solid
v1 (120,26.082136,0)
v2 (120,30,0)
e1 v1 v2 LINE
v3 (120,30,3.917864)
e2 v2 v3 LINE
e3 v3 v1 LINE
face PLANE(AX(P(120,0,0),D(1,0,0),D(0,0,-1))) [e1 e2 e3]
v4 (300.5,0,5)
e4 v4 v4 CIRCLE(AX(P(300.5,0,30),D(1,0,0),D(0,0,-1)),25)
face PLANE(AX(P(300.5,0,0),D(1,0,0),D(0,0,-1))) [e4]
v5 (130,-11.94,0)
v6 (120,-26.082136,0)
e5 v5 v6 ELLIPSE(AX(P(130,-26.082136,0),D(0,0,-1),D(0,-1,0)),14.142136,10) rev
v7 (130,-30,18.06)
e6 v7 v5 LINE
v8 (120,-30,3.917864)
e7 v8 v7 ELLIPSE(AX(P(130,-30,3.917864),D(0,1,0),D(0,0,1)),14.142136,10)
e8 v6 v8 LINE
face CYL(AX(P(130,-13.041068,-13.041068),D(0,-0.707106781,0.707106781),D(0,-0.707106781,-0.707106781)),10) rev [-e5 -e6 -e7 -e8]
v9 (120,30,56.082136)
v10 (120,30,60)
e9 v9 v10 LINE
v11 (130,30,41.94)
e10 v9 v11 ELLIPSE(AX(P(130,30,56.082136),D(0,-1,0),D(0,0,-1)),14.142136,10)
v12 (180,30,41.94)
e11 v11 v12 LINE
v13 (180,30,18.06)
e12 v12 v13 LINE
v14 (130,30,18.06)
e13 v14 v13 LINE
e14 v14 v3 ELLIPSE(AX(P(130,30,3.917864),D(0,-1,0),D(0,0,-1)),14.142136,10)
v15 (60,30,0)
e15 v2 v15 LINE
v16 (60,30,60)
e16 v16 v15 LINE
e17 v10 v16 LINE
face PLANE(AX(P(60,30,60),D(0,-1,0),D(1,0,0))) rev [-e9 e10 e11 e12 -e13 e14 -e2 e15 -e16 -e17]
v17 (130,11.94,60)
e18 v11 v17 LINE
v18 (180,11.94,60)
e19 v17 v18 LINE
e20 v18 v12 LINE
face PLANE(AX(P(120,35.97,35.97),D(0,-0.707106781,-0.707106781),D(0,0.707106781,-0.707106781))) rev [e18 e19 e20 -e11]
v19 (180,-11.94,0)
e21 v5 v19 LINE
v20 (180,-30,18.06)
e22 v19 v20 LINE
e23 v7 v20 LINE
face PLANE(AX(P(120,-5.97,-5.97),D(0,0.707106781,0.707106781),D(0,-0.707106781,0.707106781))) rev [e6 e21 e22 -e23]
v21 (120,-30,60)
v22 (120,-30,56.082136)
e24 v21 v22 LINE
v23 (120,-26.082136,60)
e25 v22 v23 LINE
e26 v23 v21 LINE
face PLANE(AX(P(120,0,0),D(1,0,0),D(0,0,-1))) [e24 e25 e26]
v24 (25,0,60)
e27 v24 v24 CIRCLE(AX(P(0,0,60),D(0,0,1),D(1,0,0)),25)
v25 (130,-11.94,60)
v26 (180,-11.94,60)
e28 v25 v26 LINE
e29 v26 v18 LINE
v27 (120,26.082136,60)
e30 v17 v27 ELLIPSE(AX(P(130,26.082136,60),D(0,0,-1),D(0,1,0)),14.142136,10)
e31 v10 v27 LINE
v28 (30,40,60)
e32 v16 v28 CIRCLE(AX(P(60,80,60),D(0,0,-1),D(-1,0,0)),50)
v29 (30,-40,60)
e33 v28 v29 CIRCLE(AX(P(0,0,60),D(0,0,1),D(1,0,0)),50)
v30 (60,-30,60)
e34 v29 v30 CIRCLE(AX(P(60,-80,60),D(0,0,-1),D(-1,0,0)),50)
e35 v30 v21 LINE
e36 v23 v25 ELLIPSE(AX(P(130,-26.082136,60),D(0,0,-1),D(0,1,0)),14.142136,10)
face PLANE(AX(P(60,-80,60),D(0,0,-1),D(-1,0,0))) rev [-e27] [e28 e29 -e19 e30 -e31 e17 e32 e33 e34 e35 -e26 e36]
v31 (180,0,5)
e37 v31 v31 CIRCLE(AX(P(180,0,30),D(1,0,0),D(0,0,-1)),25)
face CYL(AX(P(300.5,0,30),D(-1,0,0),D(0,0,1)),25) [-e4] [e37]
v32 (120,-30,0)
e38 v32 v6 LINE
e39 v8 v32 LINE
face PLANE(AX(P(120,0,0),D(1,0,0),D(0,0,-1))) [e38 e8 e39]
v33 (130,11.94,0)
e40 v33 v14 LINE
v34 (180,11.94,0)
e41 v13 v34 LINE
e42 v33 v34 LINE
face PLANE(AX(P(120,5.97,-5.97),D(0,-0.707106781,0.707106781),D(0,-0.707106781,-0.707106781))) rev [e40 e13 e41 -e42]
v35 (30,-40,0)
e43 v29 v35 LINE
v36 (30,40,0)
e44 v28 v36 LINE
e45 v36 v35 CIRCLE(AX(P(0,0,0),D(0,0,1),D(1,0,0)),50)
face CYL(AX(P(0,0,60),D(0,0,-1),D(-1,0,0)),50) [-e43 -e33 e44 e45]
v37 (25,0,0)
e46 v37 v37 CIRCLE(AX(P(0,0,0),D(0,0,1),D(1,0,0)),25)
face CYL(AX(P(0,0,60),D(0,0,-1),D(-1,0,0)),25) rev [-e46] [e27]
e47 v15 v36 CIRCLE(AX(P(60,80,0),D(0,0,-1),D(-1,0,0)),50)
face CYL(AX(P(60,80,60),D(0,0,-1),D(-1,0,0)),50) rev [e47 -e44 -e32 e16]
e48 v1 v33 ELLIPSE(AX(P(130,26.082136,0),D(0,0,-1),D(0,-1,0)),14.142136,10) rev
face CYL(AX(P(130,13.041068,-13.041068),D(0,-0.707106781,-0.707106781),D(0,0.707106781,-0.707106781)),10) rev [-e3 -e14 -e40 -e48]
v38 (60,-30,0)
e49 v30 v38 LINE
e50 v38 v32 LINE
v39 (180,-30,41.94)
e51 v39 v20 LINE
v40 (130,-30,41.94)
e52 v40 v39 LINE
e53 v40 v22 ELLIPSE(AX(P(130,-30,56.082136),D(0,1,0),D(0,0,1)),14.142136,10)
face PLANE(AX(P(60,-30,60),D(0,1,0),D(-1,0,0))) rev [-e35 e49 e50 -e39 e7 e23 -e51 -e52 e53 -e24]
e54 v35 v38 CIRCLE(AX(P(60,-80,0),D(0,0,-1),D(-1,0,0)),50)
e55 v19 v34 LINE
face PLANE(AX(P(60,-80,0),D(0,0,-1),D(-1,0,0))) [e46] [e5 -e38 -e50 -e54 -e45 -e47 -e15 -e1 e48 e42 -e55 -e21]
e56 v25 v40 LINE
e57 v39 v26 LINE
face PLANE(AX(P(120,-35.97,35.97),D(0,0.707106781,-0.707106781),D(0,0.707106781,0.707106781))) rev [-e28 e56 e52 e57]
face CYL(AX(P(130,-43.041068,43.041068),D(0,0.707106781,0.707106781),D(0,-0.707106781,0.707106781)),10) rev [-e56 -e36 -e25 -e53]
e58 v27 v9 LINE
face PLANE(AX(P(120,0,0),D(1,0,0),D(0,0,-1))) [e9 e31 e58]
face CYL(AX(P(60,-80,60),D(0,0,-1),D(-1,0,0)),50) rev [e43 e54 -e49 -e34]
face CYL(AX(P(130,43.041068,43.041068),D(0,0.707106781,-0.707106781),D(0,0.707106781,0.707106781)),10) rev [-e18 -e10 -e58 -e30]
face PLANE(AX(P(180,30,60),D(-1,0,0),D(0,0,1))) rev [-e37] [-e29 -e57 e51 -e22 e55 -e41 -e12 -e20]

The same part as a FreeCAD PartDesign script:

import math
import FreeCAD as App
import Part
import Sketcher

V = App.Vector
Q = App.Units.Quantity


def edges_at(feature, points):
    """Names of the edges that pass closest to the given points."""
    edges = feature.Shape.Edges
    near = lambda p: min(range(len(edges)), key=lambda i: edges[i].distToShape(Part.Vertex(*p))[0])
    return sorted({f"Edge{near(p) + 1}" for p in points})

doc = App.newDocument("Part")
params = doc.addObject("Spreadsheet::Sheet", "Params")
for row, (alias, value) in enumerate([
    ("sketch1_diameter", "50 mm"),
    ("sketch1_radius", "50 mm"),
    ("sketch1_width", "120 mm"),
    ("sketch1_height", "60 mm"),
    ("pad1_length", "60 mm"),
    ("sketch2_width", "18.06 mm"),
    ("pocket1_length", "60 mm"),
    ("sketch3_diameter", "50 mm"),
    ("pad2_length", "120.5 mm"),
    ("fillet_radius", "10 mm"),
], start=1):
    params.set(f"A{row}", alias)
    params.set(f"B{row}", "=" + value)
    params.setAlias(f"B{row}", alias)

body = doc.addObject("PartDesign::Body", "Body")

# Sketch on XY plane
sketch1 = doc.addObject("Sketcher::SketchObject", "Sketch")
body.addObject(sketch1)
sketch1.AttachmentSupport = (doc.XY_Plane, [""])
sketch1.MapMode = "FlatFace"
sketch1.addGeometry(Part.LineSegment(V(180, 30, 0), V(60, 30, 0)), False)
sketch1.addGeometry(Part.ArcOfCircle(Part.Circle(V(60, 80, 0), V(0, 0, 1), 50), math.radians(-127), math.radians(-90)), False)
sketch1.addGeometry(Part.ArcOfCircle(Part.Circle(V(0, 0, 0), V(0, 0, 1), 50), math.radians(53), math.radians(307)), False)
sketch1.addGeometry(Part.ArcOfCircle(Part.Circle(V(60, -80, 0), V(0, 0, 1), 50), math.radians(90), math.radians(127)), False)
sketch1.addGeometry(Part.LineSegment(V(60, -30, 0), V(180, -30, 0)), False)
sketch1.addGeometry(Part.LineSegment(V(180, -30, 0), V(180, 30, 0)), False)
sketch1.addGeometry(Part.Circle(V(0, 0, 0), V(0, 0, 1), 25), False)
sketch1.addConstraint(Sketcher.Constraint("Tangent", 0, 2, 1, 2))
sketch1.addConstraint(Sketcher.Constraint("Tangent", 1, 1, 2, 1))
sketch1.addConstraint(Sketcher.Constraint("Tangent", 2, 2, 3, 2))
sketch1.addConstraint(Sketcher.Constraint("Tangent", 3, 1, 4, 1))
sketch1.addConstraint(Sketcher.Constraint("Coincident", 4, 2, 5, 1))
sketch1.addConstraint(Sketcher.Constraint("Coincident", 5, 2, 0, 1))
sketch1.addConstraint(Sketcher.Constraint("Horizontal", 0))
sketch1.addConstraint(Sketcher.Constraint("Horizontal", 4))
sketch1.addConstraint(Sketcher.Constraint("Vertical", 5))
sketch1.addConstraint(Sketcher.Constraint("Coincident", 2, 3, -1, 1))
sketch1.addConstraint(Sketcher.Constraint("Coincident", 6, 3, -1, 1))
sketch1.addConstraint(Sketcher.Constraint("Equal", 1, 2))
sketch1.addConstraint(Sketcher.Constraint("Equal", 2, 3))
sketch1.addConstraint(Sketcher.Constraint("Vertical", 1, 3, 3, 3))
sketch1.addConstraint(Sketcher.Constraint("Diameter", 6, Q("50 mm")))
sketch1.addConstraint(Sketcher.Constraint("Radius", 1, Q("50 mm")))
sketch1.addConstraint(Sketcher.Constraint("DistanceX", 0, 2, 0, 1, Q("120 mm")))
sketch1.addConstraint(Sketcher.Constraint("DistanceY", 5, 1, 5, 2, Q("60 mm")))
sketch1.setExpression("Constraints[14]", "Params.sketch1_diameter")
sketch1.setExpression("Constraints[15]", "Params.sketch1_radius")
sketch1.setExpression("Constraints[16]", "Params.sketch1_width")
sketch1.setExpression("Constraints[17]", "Params.sketch1_height")
pad1 = doc.addObject("PartDesign::Pad", "Pad")
body.addObject(pad1)
pad1.Profile = sketch1
pad1.setExpression("Length", "Params.pad1_length")

# Sketch on YZ plane
sketch2 = doc.addObject("Sketcher::SketchObject", "Sketch001")
body.addObject(sketch2)
sketch2.AttachmentSupport = (doc.YZ_Plane, [""])
sketch2.MapMode = "FlatFace"
sketch2.AttachmentOffset = App.Placement(V(0, 0, 180), App.Rotation())
sketch2.addGeometry(Part.LineSegment(V(12, 60, 0), V(30, 42, 0)), False)
sketch2.addGeometry(Part.LineSegment(V(30, 42, 0), V(30, 60, 0)), False)
sketch2.addGeometry(Part.LineSegment(V(30, 60, 0), V(12, 60, 0)), False)
sketch2.addGeometry(Part.LineSegment(V(30, 0, 0), V(30, 18, 0)), False)
sketch2.addGeometry(Part.LineSegment(V(30, 18, 0), V(12, 0, 0)), False)
sketch2.addGeometry(Part.LineSegment(V(12, 0, 0), V(30, 0, 0)), False)
sketch2.addGeometry(Part.LineSegment(V(-30, 0, 0), V(-12, 0, 0)), False)
sketch2.addGeometry(Part.LineSegment(V(-12, 0, 0), V(-30, 18, 0)), False)
sketch2.addGeometry(Part.LineSegment(V(-30, 18, 0), V(-30, 0, 0)), False)
sketch2.addGeometry(Part.LineSegment(V(-30, 42, 0), V(-12, 60, 0)), False)
sketch2.addGeometry(Part.LineSegment(V(-12, 60, 0), V(-30, 60, 0)), False)
sketch2.addGeometry(Part.LineSegment(V(-30, 60, 0), V(-30, 42, 0)), False)
sketch2.addConstraint(Sketcher.Constraint("Coincident", 0, 2, 1, 1))
sketch2.addConstraint(Sketcher.Constraint("Coincident", 1, 2, 2, 1))
sketch2.addConstraint(Sketcher.Constraint("Coincident", 2, 2, 0, 1))
sketch2.addConstraint(Sketcher.Constraint("Coincident", 3, 2, 4, 1))
sketch2.addConstraint(Sketcher.Constraint("Coincident", 4, 2, 5, 1))
sketch2.addConstraint(Sketcher.Constraint("Coincident", 5, 2, 3, 1))
sketch2.addConstraint(Sketcher.Constraint("Coincident", 6, 2, 7, 1))
sketch2.addConstraint(Sketcher.Constraint("Coincident", 7, 2, 8, 1))
sketch2.addConstraint(Sketcher.Constraint("Coincident", 8, 2, 6, 1))
sketch2.addConstraint(Sketcher.Constraint("Coincident", 9, 2, 10, 1))
sketch2.addConstraint(Sketcher.Constraint("Coincident", 10, 2, 11, 1))
sketch2.addConstraint(Sketcher.Constraint("Coincident", 11, 2, 9, 1))
sketch2.addConstraint(Sketcher.Constraint("Vertical", 1))
sketch2.addConstraint(Sketcher.Constraint("Horizontal", 2))
sketch2.addConstraint(Sketcher.Constraint("Vertical", 3))
sketch2.addConstraint(Sketcher.Constraint("Horizontal", 5))
sketch2.addConstraint(Sketcher.Constraint("Horizontal", 6))
sketch2.addConstraint(Sketcher.Constraint("Vertical", 8))
sketch2.addConstraint(Sketcher.Constraint("Horizontal", 10))
sketch2.addConstraint(Sketcher.Constraint("Vertical", 11))
sketch2.addConstraint(Sketcher.Constraint("Symmetric", 4, 2, 6, 2, -1, 1))
sketch2.addConstraint(Sketcher.Constraint("Symmetric", 3, 2, 7, 2, -2))
sketch2.addConstraint(Sketcher.Constraint("Symmetric", 2, 2, 9, 2, -2))
sketch2.addConstraint(Sketcher.Constraint("Symmetric", 0, 2, 11, 2, -2))
sketch2.addConstraint(Sketcher.Constraint("PointOnObject", 4, 2, -1))
sketch2.addConstraint(Sketcher.Constraint("Perpendicular", 0, 4))
sketch2.addConstraint(Sketcher.Constraint("Perpendicular", 4, 7))
sketch2.addConstraint(Sketcher.Constraint("Vertical", 1, 2, 3, 2))
sketch2.addConstraint(Sketcher.Constraint("Vertical", 2, 2, 4, 2))
sketch2.addConstraint(Sketcher.Constraint("DistanceX", -1, 1, 0, 2, Q("30 mm")))
sketch2.addConstraint(Sketcher.Constraint("DistanceY", -1, 1, 1, 2, Q("60 mm")))
sketch2.addConstraint(Sketcher.Constraint("DistanceX", 2, 2, 2, 1, Q("18.06 mm")))
sketch2.setExpression("Constraints[31]", "Params.sketch2_width")
pocket1 = doc.addObject("PartDesign::Pocket", "Pocket")
body.addObject(pocket1)
pocket1.Profile = sketch2
pocket1.setExpression("Length", "Params.pocket1_length")

# Sketch on YZ plane
sketch3 = doc.addObject("Sketcher::SketchObject", "Sketch002")
body.addObject(sketch3)
sketch3.AttachmentSupport = (doc.YZ_Plane, [""])
sketch3.MapMode = "FlatFace"
sketch3.AttachmentOffset = App.Placement(V(0, 0, 180), App.Rotation())
sketch3.addGeometry(Part.Circle(V(0, 30, 0), V(0, 0, 1), 25), False)
sketch3.addConstraint(Sketcher.Constraint("PointOnObject", 0, 3, -2))
sketch3.addConstraint(Sketcher.Constraint("Diameter", 0, Q("50 mm")))
sketch3.addConstraint(Sketcher.Constraint("DistanceY", -1, 1, 0, 3, Q("30 mm")))
sketch3.setExpression("Constraints[1]", "Params.sketch3_diameter")
pad2 = doc.addObject("PartDesign::Pad", "Pad001")
body.addObject(pad2)
pad2.Profile = sketch3
pad2.setExpression("Length", "Params.pad2_length")
doc.recompute()

fillet = doc.addObject("PartDesign::Fillet", "Fillet")
body.addObject(fillet)
fillet.Base = (pad2, edges_at(pad2, [
    (120, -20.97, 50.97),
    (120, -20.97, 9.03),
    (120, 20.97, 9.03),
    (120, 20.97, 50.97),
]))
fillet.setExpression("Radius", "Params.fillet_radius")

doc.recompute()
